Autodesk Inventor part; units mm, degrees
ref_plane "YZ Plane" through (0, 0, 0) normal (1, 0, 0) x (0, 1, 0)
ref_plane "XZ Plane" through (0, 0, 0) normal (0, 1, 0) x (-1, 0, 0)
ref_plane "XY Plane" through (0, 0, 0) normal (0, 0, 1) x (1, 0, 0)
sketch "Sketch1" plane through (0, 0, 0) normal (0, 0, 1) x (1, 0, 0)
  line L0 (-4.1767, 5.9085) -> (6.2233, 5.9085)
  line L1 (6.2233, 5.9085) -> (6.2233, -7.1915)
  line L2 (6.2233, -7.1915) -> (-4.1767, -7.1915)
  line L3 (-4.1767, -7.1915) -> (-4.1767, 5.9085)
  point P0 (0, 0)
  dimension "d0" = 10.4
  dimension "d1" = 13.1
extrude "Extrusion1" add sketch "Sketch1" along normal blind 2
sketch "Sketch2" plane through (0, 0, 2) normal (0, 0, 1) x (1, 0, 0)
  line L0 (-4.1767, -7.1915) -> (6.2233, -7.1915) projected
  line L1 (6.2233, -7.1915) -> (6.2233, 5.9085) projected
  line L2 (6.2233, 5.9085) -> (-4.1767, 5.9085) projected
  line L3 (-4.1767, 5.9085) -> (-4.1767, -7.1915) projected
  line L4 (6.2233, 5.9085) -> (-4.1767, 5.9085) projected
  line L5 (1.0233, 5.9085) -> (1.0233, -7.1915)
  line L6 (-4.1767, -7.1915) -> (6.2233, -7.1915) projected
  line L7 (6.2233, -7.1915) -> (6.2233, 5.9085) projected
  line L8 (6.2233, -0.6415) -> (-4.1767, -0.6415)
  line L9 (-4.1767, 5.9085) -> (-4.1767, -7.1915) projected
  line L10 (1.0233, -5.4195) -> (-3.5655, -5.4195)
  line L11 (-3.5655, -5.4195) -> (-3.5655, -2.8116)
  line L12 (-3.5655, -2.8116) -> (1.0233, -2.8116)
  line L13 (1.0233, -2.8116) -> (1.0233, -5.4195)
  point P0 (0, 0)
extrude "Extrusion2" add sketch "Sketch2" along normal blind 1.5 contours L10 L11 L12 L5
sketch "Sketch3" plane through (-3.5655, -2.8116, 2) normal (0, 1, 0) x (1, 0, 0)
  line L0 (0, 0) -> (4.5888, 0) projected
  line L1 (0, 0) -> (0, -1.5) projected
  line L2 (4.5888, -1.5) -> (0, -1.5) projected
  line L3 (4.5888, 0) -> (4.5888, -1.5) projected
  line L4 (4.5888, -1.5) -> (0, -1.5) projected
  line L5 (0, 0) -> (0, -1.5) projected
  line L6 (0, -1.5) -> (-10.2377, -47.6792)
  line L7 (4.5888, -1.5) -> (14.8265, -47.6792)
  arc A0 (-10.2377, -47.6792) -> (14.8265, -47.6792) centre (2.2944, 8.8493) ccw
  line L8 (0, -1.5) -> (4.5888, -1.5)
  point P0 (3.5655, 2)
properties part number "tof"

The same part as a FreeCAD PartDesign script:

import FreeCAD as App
import Part
import Sketcher

V = App.Vector
Q = App.Units.Quantity


def add_polygon(sketch, points):
    """Adds a closed chain of lines whose ends are joined by coincident constraints."""
    first, n = sketch.GeometryCount, len(points)
    for a, b in zip(points, points[1:] + points[:1]):
        sketch.addGeometry(Part.LineSegment(App.Vector(*a, 0), App.Vector(*b, 0)), False)
    for i in range(n):
        sketch.addConstraint(Sketcher.Constraint("Coincident", first + i, 2, first + (i + 1) % n, 1))

doc = App.newDocument("Part")
body = doc.addObject("PartDesign::Body", "Body")

sketch1 = doc.addObject("Sketcher::SketchObject", "Sketch")
body.addObject(sketch1)
sketch1.AttachmentSupport = (doc.XY_Plane, [""])
sketch1.MapMode = "FlatFace"
add_polygon(sketch1, [(6, 6), (-4, 6), (-4, -7), (6, -7)])
sketch1.addConstraint([
    Sketcher.Constraint("Horizontal", 0),
    Sketcher.Constraint("Vertical", 1),
    Sketcher.Constraint("Horizontal", 2),
    Sketcher.Constraint("Vertical", 3),
    Sketcher.Constraint("DistanceX", 0, 2, 0, 1, Q("10.4 mm")),
    Sketcher.Constraint("DistanceY", 1, 2, 1, 1, Q("13.1 mm")),
    Sketcher.Constraint("DistanceX", 0, 2, -1, 1, Q("4.1767 mm")),
    Sketcher.Constraint("DistanceY", -1, 1, 0, 2, Q("5.9085 mm")),
])
pad1 = doc.addObject("PartDesign::Pad", "Pad")
body.addObject(pad1)
pad1.Profile = sketch1
pad1.Length = 2

sketch2 = doc.addObject("Sketcher::SketchObject", "Sketch001")
body.addObject(sketch2)
sketch2.AttachmentSupport = (doc.XY_Plane, [""])
sketch2.MapMode = "FlatFace"
sketch2.AttachmentOffset = App.Placement(V(0, 0, 2), App.Rotation())
add_polygon(sketch2, [(-3.6, -5.4), (1, -5.4), (1, -2.8), (-3.6, -2.8)])
sketch2.addConstraint([
    Sketcher.Constraint("Horizontal", 0),
    Sketcher.Constraint("Vertical", 1),
    Sketcher.Constraint("Horizontal", 2),
    Sketcher.Constraint("Vertical", 3),
    Sketcher.Constraint("DistanceY", 1, 1, 1, 2, Q("2.608 mm")),
    Sketcher.Constraint("DistanceX", 0, 1, 0, 2, Q("4.5888 mm")),
    Sketcher.Constraint("DistanceX", -1, 1, 0, 2, Q("1.0233 mm")),
    Sketcher.Constraint("DistanceY", 0, 2, -1, 1, Q("5.4195 mm")),
])
pad2 = doc.addObject("PartDesign::Pad", "Pad001")
body.addObject(pad2)
pad2.Profile = sketch2
pad2.Length = 1.5

doc.recompute()
